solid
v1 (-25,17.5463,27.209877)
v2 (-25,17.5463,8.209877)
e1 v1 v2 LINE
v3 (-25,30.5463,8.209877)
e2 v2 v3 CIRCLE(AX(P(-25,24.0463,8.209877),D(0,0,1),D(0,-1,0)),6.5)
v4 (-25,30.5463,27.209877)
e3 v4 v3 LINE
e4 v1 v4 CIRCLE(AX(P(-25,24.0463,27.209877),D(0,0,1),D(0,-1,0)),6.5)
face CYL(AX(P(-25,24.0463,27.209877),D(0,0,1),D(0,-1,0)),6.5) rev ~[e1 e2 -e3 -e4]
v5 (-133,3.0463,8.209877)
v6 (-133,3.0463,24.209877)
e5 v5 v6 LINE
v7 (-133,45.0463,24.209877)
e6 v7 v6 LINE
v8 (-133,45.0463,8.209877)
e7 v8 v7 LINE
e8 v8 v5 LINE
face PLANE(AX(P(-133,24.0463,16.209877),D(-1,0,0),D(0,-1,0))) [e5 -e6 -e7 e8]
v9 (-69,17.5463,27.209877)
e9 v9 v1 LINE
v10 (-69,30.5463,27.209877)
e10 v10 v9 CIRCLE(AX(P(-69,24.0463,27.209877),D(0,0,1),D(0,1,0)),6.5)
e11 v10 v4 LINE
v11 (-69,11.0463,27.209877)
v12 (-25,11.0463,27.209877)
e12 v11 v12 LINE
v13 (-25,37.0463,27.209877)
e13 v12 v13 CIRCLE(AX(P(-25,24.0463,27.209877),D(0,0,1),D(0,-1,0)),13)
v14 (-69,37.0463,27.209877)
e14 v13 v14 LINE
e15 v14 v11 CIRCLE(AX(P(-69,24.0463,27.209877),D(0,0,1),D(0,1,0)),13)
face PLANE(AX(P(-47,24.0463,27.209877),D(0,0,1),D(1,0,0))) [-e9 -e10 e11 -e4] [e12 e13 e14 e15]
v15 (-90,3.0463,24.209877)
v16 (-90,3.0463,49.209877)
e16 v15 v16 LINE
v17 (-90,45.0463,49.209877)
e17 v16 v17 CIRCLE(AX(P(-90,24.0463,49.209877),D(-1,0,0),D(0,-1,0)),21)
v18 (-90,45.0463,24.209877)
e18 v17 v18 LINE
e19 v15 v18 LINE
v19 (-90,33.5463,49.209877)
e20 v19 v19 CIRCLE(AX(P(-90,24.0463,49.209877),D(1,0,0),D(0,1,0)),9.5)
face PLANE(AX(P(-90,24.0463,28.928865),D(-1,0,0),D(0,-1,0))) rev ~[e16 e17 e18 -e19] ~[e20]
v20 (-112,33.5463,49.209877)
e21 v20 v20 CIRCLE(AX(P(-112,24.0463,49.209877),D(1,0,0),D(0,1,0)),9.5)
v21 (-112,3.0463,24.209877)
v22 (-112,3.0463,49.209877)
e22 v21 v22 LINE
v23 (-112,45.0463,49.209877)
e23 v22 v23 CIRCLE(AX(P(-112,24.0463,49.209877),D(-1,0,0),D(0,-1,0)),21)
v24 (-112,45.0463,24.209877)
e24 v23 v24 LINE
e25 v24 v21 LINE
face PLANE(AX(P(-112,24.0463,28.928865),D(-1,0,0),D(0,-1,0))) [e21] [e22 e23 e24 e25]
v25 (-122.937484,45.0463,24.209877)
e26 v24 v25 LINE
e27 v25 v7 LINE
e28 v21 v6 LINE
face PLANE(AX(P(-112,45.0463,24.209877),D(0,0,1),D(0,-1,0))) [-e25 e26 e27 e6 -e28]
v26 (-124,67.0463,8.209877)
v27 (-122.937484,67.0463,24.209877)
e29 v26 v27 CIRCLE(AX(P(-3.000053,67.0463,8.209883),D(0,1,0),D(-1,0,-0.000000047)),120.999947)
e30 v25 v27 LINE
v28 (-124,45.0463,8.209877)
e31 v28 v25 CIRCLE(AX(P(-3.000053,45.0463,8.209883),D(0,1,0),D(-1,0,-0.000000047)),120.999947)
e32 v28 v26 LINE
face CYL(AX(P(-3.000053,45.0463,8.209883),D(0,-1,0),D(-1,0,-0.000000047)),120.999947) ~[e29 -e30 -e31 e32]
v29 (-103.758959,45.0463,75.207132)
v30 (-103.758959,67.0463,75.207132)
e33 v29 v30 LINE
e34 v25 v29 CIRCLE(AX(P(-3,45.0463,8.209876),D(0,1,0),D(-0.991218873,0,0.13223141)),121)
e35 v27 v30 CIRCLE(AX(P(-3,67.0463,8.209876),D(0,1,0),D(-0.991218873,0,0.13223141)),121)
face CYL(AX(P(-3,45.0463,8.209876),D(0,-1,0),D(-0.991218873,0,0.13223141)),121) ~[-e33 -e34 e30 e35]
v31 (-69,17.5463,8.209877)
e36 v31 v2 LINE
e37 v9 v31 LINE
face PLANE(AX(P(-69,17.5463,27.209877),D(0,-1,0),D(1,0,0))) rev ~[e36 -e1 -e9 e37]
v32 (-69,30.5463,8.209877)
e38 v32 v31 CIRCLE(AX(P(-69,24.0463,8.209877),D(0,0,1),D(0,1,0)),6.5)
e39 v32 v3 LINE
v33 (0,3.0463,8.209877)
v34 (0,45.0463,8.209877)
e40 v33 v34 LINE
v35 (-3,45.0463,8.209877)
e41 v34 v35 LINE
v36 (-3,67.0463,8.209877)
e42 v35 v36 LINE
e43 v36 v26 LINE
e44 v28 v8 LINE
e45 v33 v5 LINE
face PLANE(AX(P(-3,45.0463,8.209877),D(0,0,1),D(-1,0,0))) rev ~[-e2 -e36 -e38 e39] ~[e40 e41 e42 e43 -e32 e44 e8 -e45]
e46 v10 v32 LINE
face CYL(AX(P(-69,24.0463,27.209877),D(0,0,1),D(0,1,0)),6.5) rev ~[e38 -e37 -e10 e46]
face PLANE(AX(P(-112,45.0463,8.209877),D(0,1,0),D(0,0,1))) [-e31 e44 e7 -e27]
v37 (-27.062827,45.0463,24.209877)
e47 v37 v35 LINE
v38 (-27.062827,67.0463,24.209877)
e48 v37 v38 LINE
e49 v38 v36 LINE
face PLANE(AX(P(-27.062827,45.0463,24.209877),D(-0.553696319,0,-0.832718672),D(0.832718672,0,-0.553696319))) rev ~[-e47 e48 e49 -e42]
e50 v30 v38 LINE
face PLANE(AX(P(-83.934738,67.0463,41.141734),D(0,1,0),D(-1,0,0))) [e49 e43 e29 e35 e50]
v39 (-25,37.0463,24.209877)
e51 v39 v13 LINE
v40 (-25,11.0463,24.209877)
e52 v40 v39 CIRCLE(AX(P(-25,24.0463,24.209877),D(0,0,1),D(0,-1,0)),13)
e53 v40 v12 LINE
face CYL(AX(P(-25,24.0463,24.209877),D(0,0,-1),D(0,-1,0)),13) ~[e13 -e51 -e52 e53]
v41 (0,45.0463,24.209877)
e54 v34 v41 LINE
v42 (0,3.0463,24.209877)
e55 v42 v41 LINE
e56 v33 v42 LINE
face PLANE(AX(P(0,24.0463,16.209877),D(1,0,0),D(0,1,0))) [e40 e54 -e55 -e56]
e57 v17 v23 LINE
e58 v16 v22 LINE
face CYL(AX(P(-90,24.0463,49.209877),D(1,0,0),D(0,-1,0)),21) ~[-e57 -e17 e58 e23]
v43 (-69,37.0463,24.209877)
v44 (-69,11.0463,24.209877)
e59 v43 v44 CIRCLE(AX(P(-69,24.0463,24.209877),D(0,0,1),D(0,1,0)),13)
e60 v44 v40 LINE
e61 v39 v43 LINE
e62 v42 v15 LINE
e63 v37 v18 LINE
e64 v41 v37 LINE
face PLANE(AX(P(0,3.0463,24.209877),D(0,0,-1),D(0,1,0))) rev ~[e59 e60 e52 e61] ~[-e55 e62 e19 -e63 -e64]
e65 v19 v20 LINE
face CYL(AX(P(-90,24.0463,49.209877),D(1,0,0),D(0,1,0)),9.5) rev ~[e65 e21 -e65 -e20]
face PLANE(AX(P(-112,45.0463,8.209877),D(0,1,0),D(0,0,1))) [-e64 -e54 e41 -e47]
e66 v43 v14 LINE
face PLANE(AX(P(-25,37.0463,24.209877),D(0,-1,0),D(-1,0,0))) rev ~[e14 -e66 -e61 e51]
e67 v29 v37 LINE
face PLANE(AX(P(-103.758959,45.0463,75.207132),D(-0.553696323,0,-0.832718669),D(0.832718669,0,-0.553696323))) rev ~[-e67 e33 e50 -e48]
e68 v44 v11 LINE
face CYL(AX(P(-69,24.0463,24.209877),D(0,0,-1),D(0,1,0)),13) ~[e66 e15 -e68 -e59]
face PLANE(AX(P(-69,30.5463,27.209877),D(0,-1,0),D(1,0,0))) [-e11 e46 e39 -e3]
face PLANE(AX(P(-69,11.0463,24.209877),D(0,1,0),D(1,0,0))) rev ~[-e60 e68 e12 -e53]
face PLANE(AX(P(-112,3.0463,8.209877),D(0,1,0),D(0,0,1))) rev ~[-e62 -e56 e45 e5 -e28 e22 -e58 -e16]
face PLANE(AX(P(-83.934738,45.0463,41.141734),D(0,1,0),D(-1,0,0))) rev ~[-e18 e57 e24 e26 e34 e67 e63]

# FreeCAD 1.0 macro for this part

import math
import FreeCAD as App
import Part
import Sketcher
Q = App.Units.Quantity

doc = App.newDocument("Part")
params = doc.addObject("Spreadsheet::Sheet", "Params")
for row, (alias, value) in enumerate([
    ("sketch1_width", "42 mm"),
    ("sketch1_height", "16 mm"),
    ("pad1_length", "90 mm"),
    ("sketch2_diameter", "19 mm"),
    ("sketch2_radius", "21 mm"),
    ("sketch2_height", "41 mm"),
    ("pad2_length", "22 mm"),
    ("sketch3_width", "42 mm"),
    ("sketch3_height", "16 mm"),
    ("pad3_length", "21 mm"),
    ("sketch4_radius", "13 mm"),
    ("sketch4_width", "44 mm"),
    ("pad4_length", "3 mm"),
    ("sketch5_radius", "6.5 mm"),
    ("sketch5_width", "44 mm"),
    ("pocket1_length", "19 mm"),
    ("sketch6_radius", "121 mm"),
    ("sketch6_width", "121 mm"),
    ("pad5_length", "22 mm"),
], start=1):
    params.set(f"A{row}", alias)
    params.set(f"B{row}", "=" + value)
    params.setAlias(f"B{row}", alias)

body = doc.addObject("PartDesign::Body", "Body")

# Sketch on YZ plane
sketch1 = body.newObject("Sketcher::SketchObject", "Sketch")
sketch1.AttachmentSupport = (doc.getObject("YZ_Plane"), [""])
sketch1.MapMode = "FlatFace"
sketch1.addGeometry(Part.LineSegment(App.Vector(3, 24, 0), App.Vector(3, 8, 0)), False)
sketch1.addGeometry(Part.LineSegment(App.Vector(3, 8, 0), App.Vector(45, 8, 0)), False)
sketch1.addGeometry(Part.LineSegment(App.Vector(45, 8, 0), App.Vector(45, 24, 0)), False)
sketch1.addGeometry(Part.LineSegment(App.Vector(45, 24, 0), App.Vector(3, 24, 0)), False)
sketch1.addConstraint(Sketcher.Constraint("Coincident", 0, 2, 1, 1))
sketch1.addConstraint(Sketcher.Constraint("Coincident", 1, 2, 2, 1))
sketch1.addConstraint(Sketcher.Constraint("Coincident", 2, 2, 3, 1))
sketch1.addConstraint(Sketcher.Constraint("Coincident", 3, 2, 0, 1))
sketch1.addConstraint(Sketcher.Constraint("Vertical", 0))
sketch1.addConstraint(Sketcher.Constraint("Horizontal", 1))
sketch1.addConstraint(Sketcher.Constraint("Vertical", 2))
sketch1.addConstraint(Sketcher.Constraint("Horizontal", 3))
sketch1.addConstraint(Sketcher.Constraint("DistanceX", 1, 1, 1, 2, Q("42 mm")))
sketch1.addConstraint(Sketcher.Constraint("DistanceY", 0, 2, 0, 1, Q("16 mm")))
sketch1.addConstraint(Sketcher.Constraint("DistanceX", -1, 1, 0, 2, Q("3.0463 mm")))
sketch1.addConstraint(Sketcher.Constraint("DistanceY", -1, 1, 0, 2, Q("8.209877 mm")))
sketch1.setExpression("Constraints[8]", "Params.sketch1_width")
sketch1.setExpression("Constraints[9]", "Params.sketch1_height")
pad1 = body.newObject("PartDesign::Pad", "Pad")
pad1.Profile = sketch1
pad1.setExpression("Length", "Params.pad1_length")
pad1.Reversed = True

# Sketch on YZ plane
sketch2 = body.newObject("Sketcher::SketchObject", "Sketch001")
sketch2.AttachmentSupport = (doc.getObject("YZ_Plane"), [""])
sketch2.MapMode = "FlatFace"
sketch2.AttachmentOffset = App.Placement(App.Vector(0, 0, -90), App.Rotation())
sketch2.addGeometry(Part.LineSegment(App.Vector(45, 49, 0), App.Vector(45, 8, 0)), False)
sketch2.addGeometry(Part.LineSegment(App.Vector(45, 8, 0), App.Vector(3, 8, 0)), False)
sketch2.addGeometry(Part.LineSegment(App.Vector(3, 8, 0), App.Vector(3, 49, 0)), False)
sketch2.addGeometry(Part.ArcOfCircle(Part.Circle(App.Vector(24, 49, 0), App.Vector(0, 0, 1), 21), math.radians(0), math.radians(180)), False)
sketch2.addGeometry(Part.Circle(App.Vector(24, 49, 0), App.Vector(0, 0, 1), 10), False)
sketch2.addConstraint(Sketcher.Constraint("Coincident", 0, 2, 1, 1))
sketch2.addConstraint(Sketcher.Constraint("Coincident", 1, 2, 2, 1))
sketch2.addConstraint(Sketcher.Constraint("Tangent", 2, 2, 3, 2))
sketch2.addConstraint(Sketcher.Constraint("Tangent", 3, 1, 0, 1))
sketch2.addConstraint(Sketcher.Constraint("Vertical", 0))
sketch2.addConstraint(Sketcher.Constraint("Horizontal", 1))
sketch2.addConstraint(Sketcher.Constraint("Vertical", 2))
sketch2.addConstraint(Sketcher.Constraint("Coincident", 4, 3, 3, 3))
sketch2.addConstraint(Sketcher.Constraint("Diameter", 4, Q("19 mm")))
sketch2.addConstraint(Sketcher.Constraint("Radius", 3, Q("21 mm")))
sketch2.addConstraint(Sketcher.Constraint("DistanceY", 0, 2, 0, 1, Q("41 mm")))
sketch2.addConstraint(Sketcher.Constraint("DistanceX", -1, 1, 3, 3, Q("24.0463 mm")))
sketch2.addConstraint(Sketcher.Constraint("DistanceY", -1, 1, 3, 3, Q("49.209877 mm")))
sketch2.setExpression("Constraints[8]", "Params.sketch2_diameter")
sketch2.setExpression("Constraints[9]", "Params.sketch2_radius")
sketch2.setExpression("Constraints[10]", "Params.sketch2_height")
pad2 = body.newObject("PartDesign::Pad", "Pad001")
pad2.Profile = sketch2
pad2.setExpression("Length", "Params.pad2_length")
pad2.Reversed = True

# Sketch on YZ plane
sketch3 = body.newObject("Sketcher::SketchObject", "Sketch002")
sketch3.AttachmentSupport = (doc.getObject("YZ_Plane"), [""])
sketch3.MapMode = "FlatFace"
sketch3.AttachmentOffset = App.Placement(App.Vector(0, 0, -112), App.Rotation())
sketch3.addGeometry(Part.LineSegment(App.Vector(45, 24, 0), App.Vector(45, 8, 0)), False)
sketch3.addGeometry(Part.LineSegment(App.Vector(45, 8, 0), App.Vector(3, 8, 0)), False)
sketch3.addGeometry(Part.LineSegment(App.Vector(3, 8, 0), App.Vector(3, 24, 0)), False)
sketch3.addGeometry(Part.LineSegment(App.Vector(3, 24, 0), App.Vector(45, 24, 0)), False)
sketch3.addConstraint(Sketcher.Constraint("Coincident", 0, 2, 1, 1))
sketch3.addConstraint(Sketcher.Constraint("Coincident", 1, 2, 2, 1))
sketch3.addConstraint(Sketcher.Constraint("Coincident", 2, 2, 3, 1))
sketch3.addConstraint(Sketcher.Constraint("Coincident", 3, 2, 0, 1))
sketch3.addConstraint(Sketcher.Constraint("Vertical", 0))
sketch3.addConstraint(Sketcher.Constraint("Horizontal", 1))
sketch3.addConstraint(Sketcher.Constraint("Vertical", 2))
sketch3.addConstraint(Sketcher.Constraint("Horizontal", 3))
sketch3.addConstraint(Sketcher.Constraint("DistanceX", 1, 2, 1, 1, Q("42 mm")))
sketch3.addConstraint(Sketcher.Constraint("DistanceY", 0, 2, 0, 1, Q("16 mm")))
sketch3.addConstraint(Sketcher.Constraint("DistanceX", -1, 1, 0, 2, Q("45.0463 mm")))
sketch3.addConstraint(Sketcher.Constraint("DistanceY", -1, 1, 0, 2, Q("8.209877 mm")))
sketch3.setExpression("Constraints[8]", "Params.sketch3_width")
sketch3.setExpression("Constraints[9]", "Params.sketch3_height")
pad3 = body.newObject("PartDesign::Pad", "Pad002")
pad3.Profile = sketch3
pad3.setExpression("Length", "Params.pad3_length")
pad3.Reversed = True

# Sketch on XY plane
sketch4 = body.newObject("Sketcher::SketchObject", "Sketch003")
sketch4.AttachmentSupport = (doc.getObject("XY_Plane"), [""])
sketch4.MapMode = "FlatFace"
sketch4.AttachmentOffset = App.Placement(App.Vector(0, 0, 24.209877), App.Rotation())
sketch4.addGeometry(Part.LineSegment(App.Vector(-69, 11, 0), App.Vector(-25, 11, 0)), False)
sketch4.addGeometry(Part.ArcOfCircle(Part.Circle(App.Vector(-25, 24, 0), App.Vector(0, 0, 1), 13), math.radians(-90), math.radians(90)), False)
sketch4.addGeometry(Part.LineSegment(App.Vector(-25, 37, 0), App.Vector(-69, 37, 0)), False)
sketch4.addGeometry(Part.ArcOfCircle(Part.Circle(App.Vector(-69, 24, 0), App.Vector(0, 0, 1), 13), math.radians(90), math.radians(270)), False)
sketch4.addConstraint(Sketcher.Constraint("Tangent", 0, 2, 1, 1))
sketch4.addConstraint(Sketcher.Constraint("Tangent", 1, 2, 2, 1))
sketch4.addConstraint(Sketcher.Constraint("Tangent", 2, 2, 3, 1))
sketch4.addConstraint(Sketcher.Constraint("Tangent", 3, 2, 0, 1))
sketch4.addConstraint(Sketcher.Constraint("Horizontal", 0))
sketch4.addConstraint(Sketcher.Constraint("Horizontal", 2))
sketch4.addConstraint(Sketcher.Constraint("Radius", 1, Q("13 mm")))
sketch4.addConstraint(Sketcher.Constraint("DistanceX", 0, 1, 0, 2, Q("44 mm")))
sketch4.addConstraint(Sketcher.Constraint("DistanceX", 1, 3, -1, 1, Q("25 mm")))
sketch4.addConstraint(Sketcher.Constraint("DistanceY", -1, 1, 1, 3, Q("24.0463 mm")))
sketch4.setExpression("Constraints[6]", "Params.sketch4_radius")
sketch4.setExpression("Constraints[7]", "Params.sketch4_width")
pad4 = body.newObject("PartDesign::Pad", "Pad003")
pad4.Profile = sketch4
pad4.setExpression("Length", "Params.pad4_length")

# Sketch on XY plane
sketch5 = body.newObject("Sketcher::SketchObject", "Sketch004")
sketch5.AttachmentSupport = (doc.getObject("XY_Plane"), [""])
sketch5.MapMode = "FlatFace"
sketch5.AttachmentOffset = App.Placement(App.Vector(0, 0, 27.209877), App.Rotation())
sketch5.addGeometry(Part.LineSegment(App.Vector(-69, 18, 0), App.Vector(-25, 18, 0)), False)
sketch5.addGeometry(Part.ArcOfCircle(Part.Circle(App.Vector(-25, 24, 0), App.Vector(0, 0, 1), 6), math.radians(-90), math.radians(90)), False)
sketch5.addGeometry(Part.LineSegment(App.Vector(-25, 31, 0), App.Vector(-69, 31, 0)), False)
sketch5.addGeometry(Part.ArcOfCircle(Part.Circle(App.Vector(-69, 24, 0), App.Vector(0, 0, 1), 6), math.radians(90), math.radians(270)), False)
sketch5.addConstraint(Sketcher.Constraint("Tangent", 0, 2, 1, 1))
sketch5.addConstraint(Sketcher.Constraint("Tangent", 1, 2, 2, 1))
sketch5.addConstraint(Sketcher.Constraint("Tangent", 2, 2, 3, 1))
sketch5.addConstraint(Sketcher.Constraint("Tangent", 3, 2, 0, 1))
sketch5.addConstraint(Sketcher.Constraint("Horizontal", 0))
sketch5.addConstraint(Sketcher.Constraint("Horizontal", 2))
sketch5.addConstraint(Sketcher.Constraint("Radius", 1, Q("6.5 mm")))
sketch5.addConstraint(Sketcher.Constraint("DistanceX", 0, 1, 0, 2, Q("44 mm")))
sketch5.addConstraint(Sketcher.Constraint("DistanceX", 1, 3, -1, 1, Q("25 mm")))
sketch5.addConstraint(Sketcher.Constraint("DistanceY", -1, 1, 1, 3, Q("24.0463 mm")))
sketch5.setExpression("Constraints[6]", "Params.sketch5_radius")
sketch5.setExpression("Constraints[7]", "Params.sketch5_width")
pocket1 = body.newObject("PartDesign::Pocket", "Pocket")
pocket1.Profile = sketch5
pocket1.setExpression("Length", "Params.pocket1_length")

# Sketch on XZ plane
sketch6 = body.newObject("Sketcher::SketchObject", "Sketch005")
sketch6.AttachmentSupport = (doc.getObject("XZ_Plane"), [""])
sketch6.MapMode = "FlatFace"
sketch6.AttachmentOffset = App.Placement(App.Vector(0, 0, -45.0463), App.Rotation())
sketch6.addGeometry(Part.ArcOfCircle(Part.Circle(App.Vector(-3, 8.209876, 0), App.Vector(0, 0, 1), 121), math.radians(146.379032), math.radians(172.401444)), False)
sketch6.addGeometry(Part.LineSegment(App.Vector(-103.758959, 75.207132, 0), App.Vector(-27.062827, 24.209877, 0)), False)
sketch6.addGeometry(Part.LineSegment(App.Vector(-27.062827, 24.209877, 0), App.Vector(-3, 8.209877, 0)), False)
sketch6.addGeometry(Part.LineSegment(App.Vector(-3, 8.209877, 0), App.Vector(-124, 8.209877, 0)), False)
sketch6.addGeometry(Part.ArcOfCircle(Part.Circle(App.Vector(-3.000053, 8.209883, 0), App.Vector(0, 0, 1), 120.999947), math.radians(172.401444), math.radians(180.000003)), False)
sketch6.addConstraint(Sketcher.Constraint("Coincident", 0, 1, 1, 1))
sketch6.addConstraint(Sketcher.Constraint("Coincident", 1, 2, 2, 1))
sketch6.addConstraint(Sketcher.Constraint("Coincident", 2, 2, 3, 1))
sketch6.addConstraint(Sketcher.Constraint("Coincident", 3, 2, 4, 2))
sketch6.addConstraint(Sketcher.Constraint("Coincident", 4, 1, 0, 2))
sketch6.addConstraint(Sketcher.Constraint("Horizontal", 3))
sketch6.addConstraint(Sketcher.Constraint("Coincident", 2, 2, 0, 3))
sketch6.addConstraint(Sketcher.Constraint("Radius", 0, Q("121 mm")))
sketch6.addConstraint(Sketcher.Constraint("DistanceX", 3, 2, 3, 1, Q("121 mm")))
sketch6.addConstraint(Sketcher.Constraint("DistanceX", 0, 3, -1, 1, Q("3 mm")))
sketch6.addConstraint(Sketcher.Constraint("DistanceY", 0, 3, 1, 2, Q("16.000001 mm")))
sketch6.addConstraint(Sketcher.Constraint("DistanceY", 3, 2, 4, 1, Q("16 mm")))
sketch6.addConstraint(Sketcher.Constraint("Radius", 4, Q("120.999947 mm")))
sketch6.addConstraint(Sketcher.Constraint("DistanceX", 0, 1, -1, 1, Q("103.758959 mm")))
sketch6.addConstraint(Sketcher.Constraint("Distance", 1, Q("92.103294 mm")))
sketch6.addConstraint(Sketcher.Constraint("DistanceY", -1, 1, 0, 3, Q("8.209876 mm")))
sketch6.setExpression("Constraints[7]", "Params.sketch6_radius")
sketch6.setExpression("Constraints[8]", "Params.sketch6_width")
pad5 = body.newObject("PartDesign::Pad", "Pad004")
pad5.Profile = sketch6
pad5.setExpression("Length", "Params.pad5_length")
pad5.Reversed = True

doc.recompute()
